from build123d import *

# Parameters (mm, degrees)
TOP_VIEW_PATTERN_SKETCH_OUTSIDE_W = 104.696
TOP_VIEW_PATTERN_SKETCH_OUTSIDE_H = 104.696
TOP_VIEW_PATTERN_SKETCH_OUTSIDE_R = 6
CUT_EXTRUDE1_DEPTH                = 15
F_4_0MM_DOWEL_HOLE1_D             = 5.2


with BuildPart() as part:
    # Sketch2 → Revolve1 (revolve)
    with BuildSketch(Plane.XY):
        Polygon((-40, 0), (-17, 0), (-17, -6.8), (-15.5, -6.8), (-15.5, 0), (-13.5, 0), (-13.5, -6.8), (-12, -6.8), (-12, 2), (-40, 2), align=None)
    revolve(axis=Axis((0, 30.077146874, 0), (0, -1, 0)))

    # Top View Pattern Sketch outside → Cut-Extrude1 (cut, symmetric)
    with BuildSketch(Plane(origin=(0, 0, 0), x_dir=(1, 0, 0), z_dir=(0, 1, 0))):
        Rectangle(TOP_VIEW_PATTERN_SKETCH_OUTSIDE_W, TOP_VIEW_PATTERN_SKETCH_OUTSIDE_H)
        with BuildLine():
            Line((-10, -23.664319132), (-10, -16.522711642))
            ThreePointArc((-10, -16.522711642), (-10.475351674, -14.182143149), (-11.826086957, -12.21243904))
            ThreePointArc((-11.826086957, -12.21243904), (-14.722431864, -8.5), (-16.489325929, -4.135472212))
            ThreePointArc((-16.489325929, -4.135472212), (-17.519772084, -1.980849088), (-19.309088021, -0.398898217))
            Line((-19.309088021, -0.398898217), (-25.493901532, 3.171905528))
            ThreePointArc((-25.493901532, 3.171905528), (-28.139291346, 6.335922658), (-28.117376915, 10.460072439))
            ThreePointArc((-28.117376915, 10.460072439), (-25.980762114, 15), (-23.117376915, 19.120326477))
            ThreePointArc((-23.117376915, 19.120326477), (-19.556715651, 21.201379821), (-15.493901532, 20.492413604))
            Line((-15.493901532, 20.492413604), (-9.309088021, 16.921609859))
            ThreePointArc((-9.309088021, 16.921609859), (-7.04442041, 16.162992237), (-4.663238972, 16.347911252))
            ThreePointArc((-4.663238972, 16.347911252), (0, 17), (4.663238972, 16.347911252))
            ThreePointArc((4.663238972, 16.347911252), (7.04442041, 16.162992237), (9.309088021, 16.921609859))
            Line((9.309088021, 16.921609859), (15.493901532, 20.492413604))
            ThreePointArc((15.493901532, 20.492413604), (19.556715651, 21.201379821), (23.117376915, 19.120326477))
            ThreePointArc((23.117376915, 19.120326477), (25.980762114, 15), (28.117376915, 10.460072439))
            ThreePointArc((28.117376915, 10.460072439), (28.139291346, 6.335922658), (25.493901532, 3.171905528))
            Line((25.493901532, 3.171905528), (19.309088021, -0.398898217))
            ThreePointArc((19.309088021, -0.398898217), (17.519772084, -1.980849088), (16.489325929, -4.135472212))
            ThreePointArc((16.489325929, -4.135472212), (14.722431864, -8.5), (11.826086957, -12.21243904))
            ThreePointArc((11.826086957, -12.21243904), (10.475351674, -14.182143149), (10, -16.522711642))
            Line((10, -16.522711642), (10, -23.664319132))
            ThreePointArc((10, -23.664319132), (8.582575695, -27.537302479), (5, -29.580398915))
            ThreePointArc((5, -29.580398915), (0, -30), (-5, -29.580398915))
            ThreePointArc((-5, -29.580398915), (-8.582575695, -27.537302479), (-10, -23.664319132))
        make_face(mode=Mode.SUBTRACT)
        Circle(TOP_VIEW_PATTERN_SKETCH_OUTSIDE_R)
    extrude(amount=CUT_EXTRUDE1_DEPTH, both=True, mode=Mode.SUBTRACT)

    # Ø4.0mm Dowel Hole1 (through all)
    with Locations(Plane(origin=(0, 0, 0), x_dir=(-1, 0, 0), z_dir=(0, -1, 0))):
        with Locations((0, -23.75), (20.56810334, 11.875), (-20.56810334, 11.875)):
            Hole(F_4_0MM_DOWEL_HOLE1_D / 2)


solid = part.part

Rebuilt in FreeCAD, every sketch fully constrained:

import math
import FreeCAD as App
import Part
import Sketcher

V = App.Vector
Q = App.Units.Quantity

doc = App.newDocument("Part")
body = doc.addObject("PartDesign::Body", "Body")

# Sketch on XY plane
sketch1 = body.newObject("Sketcher::SketchObject", "Sketch")
sketch1.AttachmentSupport = (doc.getObject("XY_Plane"), [""])
sketch1.MapMode = "FlatFace"
sketch1.addGeometry(Part.LineSegment(V(-40, 0, 0), V(-17, 0, 0)), False)
sketch1.addGeometry(Part.LineSegment(V(-17, 0, 0), V(-17, -6.8, 0)), False)
sketch1.addGeometry(Part.LineSegment(V(-17, -6.8, 0), V(-15.5, -6.8, 0)), False)
sketch1.addGeometry(Part.LineSegment(V(-15.5, -6.8, 0), V(-15.5, 0, 0)), False)
sketch1.addGeometry(Part.LineSegment(V(-15.5, 0, 0), V(-13.5, 0, 0)), False)
sketch1.addGeometry(Part.LineSegment(V(-13.5, 0, 0), V(-13.5, -6.8, 0)), False)
sketch1.addGeometry(Part.LineSegment(V(-13.5, -6.8, 0), V(-12, -6.8, 0)), False)
sketch1.addGeometry(Part.LineSegment(V(-12, -6.8, 0), V(-12, 2, 0)), False)
sketch1.addGeometry(Part.LineSegment(V(-12, 2, 0), V(-40, 2, 0)), False)
sketch1.addGeometry(Part.LineSegment(V(-40, 2, 0), V(-40, 0, 0)), False)
sketch1.addConstraint(Sketcher.Constraint("Coincident", 0, 2, 1, 1))
sketch1.addConstraint(Sketcher.Constraint("Coincident", 1, 2, 2, 1))
sketch1.addConstraint(Sketcher.Constraint("Coincident", 2, 2, 3, 1))
sketch1.addConstraint(Sketcher.Constraint("Coincident", 3, 2, 4, 1))
sketch1.addConstraint(Sketcher.Constraint("Coincident", 4, 2, 5, 1))
sketch1.addConstraint(Sketcher.Constraint("Coincident", 5, 2, 6, 1))
sketch1.addConstraint(Sketcher.Constraint("Coincident", 6, 2, 7, 1))
sketch1.addConstraint(Sketcher.Constraint("Coincident", 7, 2, 8, 1))
sketch1.addConstraint(Sketcher.Constraint("Coincident", 8, 2, 9, 1))
sketch1.addConstraint(Sketcher.Constraint("Coincident", 9, 2, 0, 1))
sketch1.addConstraint(Sketcher.Constraint("Horizontal", 0))
sketch1.addConstraint(Sketcher.Constraint("Vertical", 1))
sketch1.addConstraint(Sketcher.Constraint("Horizontal", 2))
sketch1.addConstraint(Sketcher.Constraint("Vertical", 3))
sketch1.addConstraint(Sketcher.Constraint("Horizontal", 4))
sketch1.addConstraint(Sketcher.Constraint("Vertical", 5))
sketch1.addConstraint(Sketcher.Constraint("Horizontal", 6))
sketch1.addConstraint(Sketcher.Constraint("Vertical", 7))
sketch1.addConstraint(Sketcher.Constraint("Horizontal", 8))
sketch1.addConstraint(Sketcher.Constraint("Vertical", 9))
sketch1.addConstraint(Sketcher.Constraint("PointOnObject", 0, 2, -1))
sketch1.addConstraint(Sketcher.Constraint("PointOnObject", 3, 2, -1))
sketch1.addConstraint(Sketcher.Constraint("Horizontal", 2, 2, 5, 2))
sketch1.addConstraint(Sketcher.Constraint("Equal", 2, 6))
sketch1.addConstraint(Sketcher.Constraint("Equal", 4, 9))
sketch1.addConstraint(Sketcher.Constraint("DistanceX", 0, 1, 0, 2, Q("23 mm")))
sketch1.addConstraint(Sketcher.Constraint("DistanceX", 4, 1, 4, 2, Q("2 mm")))
sketch1.addConstraint(Sketcher.Constraint("DistanceX", 8, 2, 8, 1, Q("28 mm")))
sketch1.addConstraint(Sketcher.Constraint("DistanceY", 1, 2, 1, 1, Q("6.8 mm")))
sketch1.addConstraint(Sketcher.Constraint("DistanceX", 0, 2, -1, 1, Q("17 mm")))
revolution = body.newObject("PartDesign::Revolution", "Revolution")
revolution.Profile = sketch1
revolution.ReferenceAxis = (sketch1, ["V_Axis"])
revolution.Angle = 360

# Sketch on XZ plane
sketch2 = body.newObject("Sketcher::SketchObject", "Sketch001")
sketch2.AttachmentSupport = (doc.getObject("XZ_Plane"), [""])
sketch2.MapMode = "FlatFace"
sketch2.addGeometry(Part.LineSegment(V(-52.3, -52.3, 0), V(-52.3, 52.3, 0)), False)
sketch2.addGeometry(Part.LineSegment(V(-52.3, 52.3, 0), V(52.3, 52.3, 0)), False)
sketch2.addGeometry(Part.LineSegment(V(52.3, 52.3, 0), V(52.3, -52.3, 0)), False)
sketch2.addGeometry(Part.LineSegment(V(52.3, -52.3, 0), V(-52.3, -52.3, 0)), False)
sketch2.addGeometry(Part.ArcOfCircle(Part.Circle(V(-4, 23.7, 0), V(0, 0, 1), 6), math.radians(100), math.radians(180)), False)
sketch2.addGeometry(Part.LineSegment(V(-10, 23.7, 0), V(-10, 16.5, 0)), False)
sketch2.addGeometry(Part.ArcOfCircle(Part.Circle(V(-16, 16.5, 0), V(0, 0, 1), 6), math.radians(-46), math.radians(0)), False)
sketch2.addGeometry(Part.ArcOfCircle(Part.Circle(V(0, 0, 0), V(0, 0, 1), 17), math.radians(134), math.radians(166)), False)
sketch2.addGeometry(Part.ArcOfCircle(Part.Circle(V(-22.3, 5.6, 0), V(0, 0, 1), 6), math.radians(-60), math.radians(-14)), False)
sketch2.addGeometry(Part.LineSegment(V(-19.3, 0.4, 0), V(-25.5, -3.2, 0)), False)
sketch2.addGeometry(Part.ArcOfCircle(Part.Circle(V(-22.5, -8.4, 0), V(0, 0, 1), 6), math.radians(120), math.radians(200)), False)
sketch2.addGeometry(Part.ArcOfCircle(Part.Circle(V(0, 0, 0), V(0, 0, 1), 30), math.radians(-159.59), math.radians(-140.41)), False)
sketch2.addGeometry(Part.ArcOfCircle(Part.Circle(V(-18.5, -15.3, 0), V(0, 0, 1), 6), math.radians(-140), math.radians(-60)), False)
sketch2.addGeometry(Part.LineSegment(V(-15.5, -20.5, 0), V(-9.3, -16.9, 0)), False)
sketch2.addGeometry(Part.ArcOfCircle(Part.Circle(V(-6.3, -22.1, 0), V(0, 0, 1), 6), math.radians(74), math.radians(120)), False)
sketch2.addGeometry(Part.ArcOfCircle(Part.Circle(V(0, 0, 0), V(0, 0, 1), 17), math.radians(-106), math.radians(-74)), False)
sketch2.addGeometry(Part.ArcOfCircle(Part.Circle(V(6.3, -22.1, 0), V(0, 0, 1), 6), math.radians(60), math.radians(106)), False)
sketch2.addGeometry(Part.LineSegment(V(9.3, -16.9, 0), V(15.5, -20.5, 0)), False)
sketch2.addGeometry(Part.ArcOfCircle(Part.Circle(V(18.5, -15.3, 0), V(0, 0, 1), 6), math.radians(-120), math.radians(-40)), False)
sketch2.addGeometry(Part.ArcOfCircle(Part.Circle(V(0, 0, 0), V(0, 0, 1), 30), math.radians(-39.59), math.radians(-20.41)), False)
sketch2.addGeometry(Part.ArcOfCircle(Part.Circle(V(22.5, -8.4, 0), V(0, 0, 1), 6), math.radians(-20), math.radians(60)), False)
sketch2.addGeometry(Part.LineSegment(V(25.5, -3.2, 0), V(19.3, 0.4, 0)), False)
sketch2.addGeometry(Part.ArcOfCircle(Part.Circle(V(22.3, 5.6, 0), V(0, 0, 1), 6), math.radians(-166), math.radians(-120)), False)
sketch2.addGeometry(Part.ArcOfCircle(Part.Circle(V(0, 0, 0), V(0, 0, 1), 17), math.radians(14), math.radians(46)), False)
sketch2.addGeometry(Part.ArcOfCircle(Part.Circle(V(16, 16.5, 0), V(0, 0, 1), 6), math.radians(-180), math.radians(-134)), False)
sketch2.addGeometry(Part.LineSegment(V(10, 16.5, 0), V(10, 23.7, 0)), False)
sketch2.addGeometry(Part.ArcOfCircle(Part.Circle(V(4, 23.7, 0), V(0, 0, 1), 6), math.radians(0), math.radians(80)), False)
sketch2.addGeometry(Part.ArcOfCircle(Part.Circle(V(0, 0, 0), V(0, 0, 1), 30), math.radians(80.41), math.radians(99.59)), False)
sketch2.addGeometry(Part.Circle(V(0, 0, 0), V(0, 0, 1), 6), False)
sketch2.addConstraint(Sketcher.Constraint("Coincident", 0, 2, 1, 1))
sketch2.addConstraint(Sketcher.Constraint("Coincident", 1, 2, 2, 1))
sketch2.addConstraint(Sketcher.Constraint("Coincident", 2, 2, 3, 1))
sketch2.addConstraint(Sketcher.Constraint("Coincident", 3, 2, 0, 1))
sketch2.addConstraint(Sketcher.Constraint("Tangent", 4, 2, 5, 1))
sketch2.addConstraint(Sketcher.Constraint("Tangent", 5, 2, 6, 2))
sketch2.addConstraint(Sketcher.Constraint("Tangent", 6, 1, 7, 1))
sketch2.addConstraint(Sketcher.Constraint("Tangent", 7, 2, 8, 2))
sketch2.addConstraint(Sketcher.Constraint("Tangent", 8, 1, 9, 1))
sketch2.addConstraint(Sketcher.Constraint("Tangent", 9, 2, 10, 1))
sketch2.addConstraint(Sketcher.Constraint("Tangent", 10, 2, 11, 1))
sketch2.addConstraint(Sketcher.Constraint("Tangent", 11, 2, 12, 1))
sketch2.addConstraint(Sketcher.Constraint("Tangent", 12, 2, 13, 1))
sketch2.addConstraint(Sketcher.Constraint("Tangent", 13, 2, 14, 2))
sketch2.addConstraint(Sketcher.Constraint("Tangent", 14, 1, 15, 1))
sketch2.addConstraint(Sketcher.Constraint("Tangent", 15, 2, 16, 2))
sketch2.addConstraint(Sketcher.Constraint("Tangent", 16, 1, 17, 1))
sketch2.addConstraint(Sketcher.Constraint("Tangent", 17, 2, 18, 1))
sketch2.addConstraint(Sketcher.Constraint("Tangent", 18, 2, 19, 1))
sketch2.addConstraint(Sketcher.Constraint("Tangent", 19, 2, 20, 1))
sketch2.addConstraint(Sketcher.Constraint("Tangent", 20, 2, 21, 1))
sketch2.addConstraint(Sketcher.Constraint("Tangent", 21, 2, 22, 2))
sketch2.addConstraint(Sketcher.Constraint("Tangent", 22, 1, 23, 1))
sketch2.addConstraint(Sketcher.Constraint("Tangent", 23, 2, 24, 2))
sketch2.addConstraint(Sketcher.Constraint("Tangent", 24, 1, 25, 1))
sketch2.addConstraint(Sketcher.Constraint("Tangent", 25, 2, 26, 1))
sketch2.addConstraint(Sketcher.Constraint("Tangent", 26, 2, 27, 1))
sketch2.addConstraint(Sketcher.Constraint("Tangent", 27, 2, 4, 1))
sketch2.addConstraint(Sketcher.Constraint("Vertical", 0))
sketch2.addConstraint(Sketcher.Constraint("Horizontal", 1))
sketch2.addConstraint(Sketcher.Constraint("Vertical", 2))
sketch2.addConstraint(Sketcher.Constraint("Horizontal", 3))
sketch2.addConstraint(Sketcher.Constraint("Vertical", 5))
sketch2.addConstraint(Sketcher.Constraint("Vertical", 25))
sketch2.addConstraint(Sketcher.Constraint("Coincident", 7, 3, -1, 1))
sketch2.addConstraint(Sketcher.Constraint("Coincident", 11, 3, -1, 1))
sketch2.addConstraint(Sketcher.Constraint("Coincident", 15, 3, -1, 1))
sketch2.addConstraint(Sketcher.Constraint("Coincident", 19, 3, -1, 1))
sketch2.addConstraint(Sketcher.Constraint("Coincident", 23, 3, -1, 1))
sketch2.addConstraint(Sketcher.Constraint("Coincident", 27, 3, -1, 1))
sketch2.addConstraint(Sketcher.Constraint("Coincident", 28, 3, -1, 1))
sketch2.addConstraint(Sketcher.Constraint("Equal", 4, 6))
sketch2.addConstraint(Sketcher.Constraint("Equal", 6, 8))
sketch2.addConstraint(Sketcher.Constraint("Equal", 8, 10))
sketch2.addConstraint(Sketcher.Constraint("Equal", 10, 12))
sketch2.addConstraint(Sketcher.Constraint("Equal", 12, 14))
sketch2.addConstraint(Sketcher.Constraint("Equal", 7, 15))
sketch2.addConstraint(Sketcher.Constraint("Equal", 14, 16))
sketch2.addConstraint(Sketcher.Constraint("Equal", 16, 18))
sketch2.addConstraint(Sketcher.Constraint("Equal", 11, 19))
sketch2.addConstraint(Sketcher.Constraint("Equal", 18, 20))
sketch2.addConstraint(Sketcher.Constraint("Equal", 20, 22))
sketch2.addConstraint(Sketcher.Constraint("Equal", 15, 23))
sketch2.addConstraint(Sketcher.Constraint("Equal", 22, 24))
sketch2.addConstraint(Sketcher.Constraint("Equal", 24, 26))
sketch2.addConstraint(Sketcher.Constraint("Equal", 19, 27))
sketch2.addConstraint(Sketcher.Constraint("Equal", 26, 28))
sketch2.addConstraint(Sketcher.Constraint("Symmetric", 0, 2, 2, 2, -1, 1))
sketch2.addConstraint(Sketcher.Constraint("Symmetric", 13, 2, 16, 1, -2))
sketch2.addConstraint(Sketcher.Constraint("Symmetric", 9, 2, 20, 2, -2))
sketch2.addConstraint(Sketcher.Constraint("Parallel", 9, 13))
sketch2.addConstraint(Sketcher.Constraint("Horizontal", 6, 3, 24, 3))
sketch2.addConstraint(Sketcher.Constraint("Equal", 3, 0))
sketch2.addConstraint(Sketcher.Constraint("Equal", 9, 13))
sketch2.addConstraint(Sketcher.Constraint("Diameter", 28, Q("12 mm")))
sketch2.addConstraint(Sketcher.Constraint("Radius", 7, Q("17 mm")))
sketch2.addConstraint(Sketcher.Constraint("Radius", 11, Q("30 mm")))
sketch2.addConstraint(Sketcher.Constraint("Angle", 9, Q("-150 deg")))
sketch2.addConstraint(Sketcher.Constraint("DistanceX", 4, 3, -1, 1, Q("4 mm")))
sketch2.addConstraint(Sketcher.Constraint("DistanceX", 10, 3, 12, 3, Q("4 mm")))
sketch2.addConstraint(Sketcher.Constraint("DistanceX", 1, 1, 1, 2, Q("104.696 mm")))
pocket1 = body.newObject("PartDesign::Pocket", "Pocket")
pocket1.Profile = sketch2
pocket1.Length = 30
pocket1.Midplane = True

# Sketch on XZ plane
sketch3 = body.newObject("Sketcher::SketchObject", "Sketch002")
sketch3.AttachmentSupport = (doc.getObject("XZ_Plane"), [""])
sketch3.MapMode = "FlatFace"
sketch3.addGeometry(Part.Circle(V(0, 23.8, 0), V(0, 0, 1), 2.6), False)
sketch3.addGeometry(Part.Circle(V(-20.6, -11.9, 0), V(0, 0, 1), 2.6), False)
sketch3.addGeometry(Part.Circle(V(20.6, -11.9, 0), V(0, 0, 1), 2.6), False)
sketch3.addConstraint(Sketcher.Constraint("Equal", 0, 1))
sketch3.addConstraint(Sketcher.Constraint("Equal", 1, 2))
sketch3.addConstraint(Sketcher.Constraint("Symmetric", 1, 3, 2, 3, -2))
sketch3.addConstraint(Sketcher.Constraint("PointOnObject", 0, 3, -2))
sketch3.addConstraint(Sketcher.Constraint("Diameter", 0, Q("5.2 mm")))
sketch3.addConstraint(Sketcher.Constraint("DistanceY", -1, 1, 0, 3, Q("23.75 mm")))
sketch3.addConstraint(Sketcher.Constraint("DistanceY", 1, 3, -1, 1, Q("11.875 mm")))
sketch3.addConstraint(Sketcher.Constraint("DistanceX", 1, 3, -1, 1, Q("20.568103 mm")))
doc.recompute()
hole = body.newObject("PartDesign::Hole", "Hole")
hole.Profile = sketch3
hole.ThreadType = "None"
hole.Diameter = 5.2
hole.DepthType = "ThroughAll"

doc.recompute()
